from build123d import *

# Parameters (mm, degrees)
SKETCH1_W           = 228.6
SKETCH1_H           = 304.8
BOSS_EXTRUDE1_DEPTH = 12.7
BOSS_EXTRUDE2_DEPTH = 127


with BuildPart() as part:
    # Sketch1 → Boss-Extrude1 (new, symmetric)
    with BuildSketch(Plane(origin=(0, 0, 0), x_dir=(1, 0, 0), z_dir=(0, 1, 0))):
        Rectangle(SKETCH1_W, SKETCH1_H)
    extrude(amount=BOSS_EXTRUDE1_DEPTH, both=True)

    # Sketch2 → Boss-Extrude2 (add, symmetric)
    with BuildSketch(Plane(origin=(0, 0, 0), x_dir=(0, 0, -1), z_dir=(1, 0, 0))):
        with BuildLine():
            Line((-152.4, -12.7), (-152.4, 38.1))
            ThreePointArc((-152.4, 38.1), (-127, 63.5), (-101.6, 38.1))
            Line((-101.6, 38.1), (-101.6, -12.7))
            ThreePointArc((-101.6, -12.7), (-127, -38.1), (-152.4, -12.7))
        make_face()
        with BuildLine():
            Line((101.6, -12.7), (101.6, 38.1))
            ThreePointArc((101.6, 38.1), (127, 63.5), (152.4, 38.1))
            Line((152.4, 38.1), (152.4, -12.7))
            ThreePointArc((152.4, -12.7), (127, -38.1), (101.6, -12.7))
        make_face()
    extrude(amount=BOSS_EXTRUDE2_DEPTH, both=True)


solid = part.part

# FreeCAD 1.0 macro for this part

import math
import FreeCAD as App
import Part
import Sketcher
from FreeCAD import Vector
Q = App.Units.Quantity


def add_polygon(sketch, points):
    """Adds a closed chain of lines whose ends are joined by coincident constraints."""
    first, n = sketch.GeometryCount, len(points)
    for a, b in zip(points, points[1:] + points[:1]):
        sketch.addGeometry(Part.LineSegment(App.Vector(*a, 0), App.Vector(*b, 0)), False)
    for i in range(n):
        sketch.addConstraint(Sketcher.Constraint("Coincident", first + i, 2, first + (i + 1) % n, 1))

doc = App.newDocument("Part")
body = doc.addObject("PartDesign::Body", "Body")

sketch1 = body.newObject("Sketcher::SketchObject", "Sketch")
sketch1.AttachmentSupport = (doc.getObject("XZ_Plane"), [""])
sketch1.MapMode = "FlatFace"
add_polygon(sketch1, [(-114, -152), (-114, 152), (114, 152), (114, -152)])
sketch1.addConstraint([
    Sketcher.Constraint("Vertical", 0),
    Sketcher.Constraint("Horizontal", 1),
    Sketcher.Constraint("Vertical", 2),
    Sketcher.Constraint("Horizontal", 3),
    Sketcher.Constraint("Symmetric", 0, 2, 2, 2, -1, 1),
    Sketcher.Constraint("DistanceX", 1, 1, 1, 2, Q("9 in")),
    Sketcher.Constraint("DistanceY", 0, 1, 0, 2, Q("12 in")),
])
pad1 = body.newObject("PartDesign::Pad", "Pad")
pad1.Profile = sketch1
pad1.Length = Q("1 in")
pad1.Midplane = True

sketch2 = body.newObject("Sketcher::SketchObject", "Sketch001")
sketch2.AttachmentSupport = (doc.getObject("YZ_Plane"), [""])
sketch2.MapMode = "FlatFace"
sketch2.addGeometry([
    Part.LineSegment(Vector(38, 152, 0), Vector(-13, 152, 0)),
    Part.ArcOfCircle(Part.Circle(Vector(-13, 127, 0), Vector(0, 0, 1), 25), math.radians(90), math.radians(270)),
    Part.LineSegment(Vector(-13, 102, 0), Vector(38, 102, 0)),
    Part.ArcOfCircle(Part.Circle(Vector(38, 127, 0), Vector(0, 0, 1), 25), math.radians(-90), math.radians(90)),
    Part.LineSegment(Vector(38, -102, 0), Vector(-13, -102, 0)),
    Part.ArcOfCircle(Part.Circle(Vector(-13, -127, 0), Vector(0, 0, 1), 25), math.radians(90), math.radians(270)),
    Part.LineSegment(Vector(-13, -152, 0), Vector(38, -152, 0)),
    Part.ArcOfCircle(Part.Circle(Vector(38, -127, 0), Vector(0, 0, 1), 25), math.radians(-90), math.radians(90)),
], False)
sketch2.addConstraint([
    Sketcher.Constraint("Tangent", 0, 2, 1, 1),
    Sketcher.Constraint("Tangent", 1, 2, 2, 1),
    Sketcher.Constraint("Tangent", 2, 2, 3, 1),
    Sketcher.Constraint("Tangent", 3, 2, 0, 1),
    Sketcher.Constraint("Tangent", 4, 2, 5, 1),
    Sketcher.Constraint("Tangent", 5, 2, 6, 1),
    Sketcher.Constraint("Tangent", 6, 2, 7, 1),
    Sketcher.Constraint("Tangent", 7, 2, 4, 1),
    Sketcher.Constraint("Horizontal", 0),
    Sketcher.Constraint("Horizontal", 2),
    Sketcher.Constraint("Horizontal", 4),
    Sketcher.Constraint("Horizontal", 6),
    Sketcher.Constraint("Equal", 3, 5),
    Sketcher.Constraint("Symmetric", 1, 3, 5, 3, -1),
    Sketcher.Constraint("Vertical", 3, 3, 7, 3),
    Sketcher.Constraint("Radius", 1, Q("1 in")),
    Sketcher.Constraint("DistanceX", 0, 2, 0, 1, Q("2 in")),
    Sketcher.Constraint("DistanceY", -1, 1, 1, 3, Q("5 in")),
    Sketcher.Constraint("DistanceX", 1, 3, -1, 1, Q("0.5 in")),
])
pad2 = body.newObject("PartDesign::Pad", "Pad001")
pad2.Profile = sketch2
pad2.Length = Q("10 in")
pad2.Midplane = True

doc.recompute()
